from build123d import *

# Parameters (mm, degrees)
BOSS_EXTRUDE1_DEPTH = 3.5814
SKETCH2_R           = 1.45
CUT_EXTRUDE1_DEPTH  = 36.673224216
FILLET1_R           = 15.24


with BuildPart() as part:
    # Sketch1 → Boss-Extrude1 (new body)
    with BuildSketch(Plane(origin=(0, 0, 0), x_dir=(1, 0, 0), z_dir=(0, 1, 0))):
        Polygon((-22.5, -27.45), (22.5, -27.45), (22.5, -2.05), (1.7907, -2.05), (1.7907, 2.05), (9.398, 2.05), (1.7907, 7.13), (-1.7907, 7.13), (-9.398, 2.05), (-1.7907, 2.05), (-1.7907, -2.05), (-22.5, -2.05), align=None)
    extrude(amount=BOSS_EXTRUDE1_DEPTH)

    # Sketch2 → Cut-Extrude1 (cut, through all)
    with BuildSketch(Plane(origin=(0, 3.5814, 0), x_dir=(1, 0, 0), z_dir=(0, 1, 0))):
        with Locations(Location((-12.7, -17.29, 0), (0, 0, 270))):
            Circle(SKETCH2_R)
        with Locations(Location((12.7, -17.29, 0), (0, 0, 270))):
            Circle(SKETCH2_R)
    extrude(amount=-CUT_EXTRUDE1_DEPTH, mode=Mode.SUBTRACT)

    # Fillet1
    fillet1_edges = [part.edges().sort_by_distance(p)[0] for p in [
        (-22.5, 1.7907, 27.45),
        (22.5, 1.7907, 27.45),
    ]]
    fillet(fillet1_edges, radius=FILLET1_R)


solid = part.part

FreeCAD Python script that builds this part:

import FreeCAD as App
import Part
import Sketcher
Q = App.Units.Quantity


def edges_at(feature, points):
    """Names of the edges that pass closest to the given points."""
    edges = feature.Shape.Edges
    near = lambda p: min(range(len(edges)), key=lambda i: edges[i].distToShape(Part.Vertex(*p))[0])
    return sorted({f"Edge{near(p) + 1}" for p in points})


def add_polygon(sketch, points):
    """Adds a closed chain of lines whose ends are joined by coincident constraints."""
    first, n = sketch.GeometryCount, len(points)
    for a, b in zip(points, points[1:] + points[:1]):
        sketch.addGeometry(Part.LineSegment(App.Vector(*a, 0), App.Vector(*b, 0)), False)
    for i in range(n):
        sketch.addConstraint(Sketcher.Constraint("Coincident", first + i, 2, first + (i + 1) % n, 1))

doc = App.newDocument("Part")
body = doc.addObject("PartDesign::Body", "Body")

# Sketch on XZ plane
sketch1 = body.newObject("Sketcher::SketchObject", "Sketch")
sketch1.AttachmentSupport = (doc.getObject("XZ_Plane"), [""])
sketch1.MapMode = "FlatFace"
add_polygon(sketch1, [(-22.5, 27.4), (22.5, 27.4), (22.5, 2), (1.8, 2), (1.8, -2), (9.4, -2), (1.8, -7.1), (-1.8, -7.1), (-9.4, -2), (-1.8, -2), (-1.8, 2), (-22.5, 2)])  # lines 0-11
sketch1.addConstraint(Sketcher.Constraint("Horizontal", 0))
sketch1.addConstraint(Sketcher.Constraint("Vertical", 1))
sketch1.addConstraint(Sketcher.Constraint("Horizontal", 2))
sketch1.addConstraint(Sketcher.Constraint("Vertical", 3))
sketch1.addConstraint(Sketcher.Constraint("Horizontal", 4))
sketch1.addConstraint(Sketcher.Constraint("Horizontal", 6))
sketch1.addConstraint(Sketcher.Constraint("Horizontal", 8))
sketch1.addConstraint(Sketcher.Constraint("Vertical", 9))
sketch1.addConstraint(Sketcher.Constraint("Horizontal", 10))
sketch1.addConstraint(Sketcher.Constraint("Vertical", 11))
sketch1.addConstraint(Sketcher.Constraint("Symmetric", 2, 2, 8, 2, -1, 1))
sketch1.addConstraint(Sketcher.Constraint("Symmetric", 4, 2, 7, 2, -2))
sketch1.addConstraint(Sketcher.Constraint("Symmetric", 1, 2, 10, 2, -2))
sketch1.addConstraint(Sketcher.Constraint("Vertical", 3, 2, 5, 2))
sketch1.addConstraint(Sketcher.Constraint("Vertical", 6, 2, 8, 2))
sketch1.addConstraint(Sketcher.Constraint("DistanceX", 0, 1, 0, 2, Q("45 mm")))
sketch1.addConstraint(Sketcher.Constraint("DistanceY", 1, 2, 1, 1, Q("25.4 mm")))
sketch1.addConstraint(Sketcher.Constraint("DistanceY", 3, 2, 3, 1, Q("4.1 mm")))
sketch1.addConstraint(Sketcher.Constraint("DistanceY", 5, 2, -1, 1, Q("7.13 mm")))
sketch1.addConstraint(Sketcher.Constraint("DistanceX", 2, 2, 2, 1, Q("20.7093 mm")))
sketch1.addConstraint(Sketcher.Constraint("DistanceX", 4, 1, 4, 2, Q("7.6073 mm")))
pad1 = body.newObject("PartDesign::Pad", "Pad")
pad1.Profile = sketch1
pad1.Length = 3.5814
pad1.Reversed = True

# Sketch on XZ plane
sketch2 = body.newObject("Sketcher::SketchObject", "Sketch001")
sketch2.AttachmentSupport = (doc.getObject("XZ_Plane"), [""])
sketch2.MapMode = "FlatFace"
sketch2.AttachmentOffset = App.Placement(App.Vector(0, 0, -3.5814), App.Rotation())
sketch2.addGeometry(Part.Circle(App.Vector(-12.7, 17.3, 0), App.Vector(0, 0, 1), 1.4), False)
sketch2.addGeometry(Part.Circle(App.Vector(12.7, 17.3, 0), App.Vector(0, 0, 1), 1.4), False)
sketch2.addConstraint(Sketcher.Constraint("Equal", 0, 1))
sketch2.addConstraint(Sketcher.Constraint("Symmetric", 0, 3, 1, 3, -2))
sketch2.addConstraint(Sketcher.Constraint("Diameter", 0, Q("2.9 mm")))
sketch2.addConstraint(Sketcher.Constraint("DistanceX", 0, 3, -1, 1, Q("12.7 mm")))
sketch2.addConstraint(Sketcher.Constraint("DistanceY", -1, 1, 0, 3, Q("17.29 mm")))
pocket1 = body.newObject("PartDesign::Pocket", "Pocket")
pocket1.Profile = sketch2
pocket1.Type = "ThroughAll"
pocket1.Reversed = True
doc.recompute()

fillet = body.newObject("PartDesign::Fillet", "Fillet")
fillet.Base = (pocket1, edges_at(pocket1, [(-22.5, 1.791, 27.45), (22.5, 1.791, 27.45)]))
fillet.Radius = 15.24

doc.recompute()
